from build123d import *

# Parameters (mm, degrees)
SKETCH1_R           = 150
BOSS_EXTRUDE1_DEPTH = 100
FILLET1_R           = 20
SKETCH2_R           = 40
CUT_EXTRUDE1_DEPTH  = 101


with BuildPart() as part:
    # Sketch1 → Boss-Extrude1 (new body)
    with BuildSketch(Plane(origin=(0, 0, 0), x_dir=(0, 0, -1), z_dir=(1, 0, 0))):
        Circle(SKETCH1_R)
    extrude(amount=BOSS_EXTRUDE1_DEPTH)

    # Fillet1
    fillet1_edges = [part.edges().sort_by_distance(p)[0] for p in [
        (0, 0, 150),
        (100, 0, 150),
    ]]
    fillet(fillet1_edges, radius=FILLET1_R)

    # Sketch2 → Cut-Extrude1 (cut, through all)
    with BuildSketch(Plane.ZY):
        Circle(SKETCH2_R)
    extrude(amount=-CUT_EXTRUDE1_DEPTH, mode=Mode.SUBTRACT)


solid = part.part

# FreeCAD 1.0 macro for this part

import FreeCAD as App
import Part
import Sketcher

V = App.Vector
Q = App.Units.Quantity


def edges_at(feature, points):
    """Names of the edges that pass closest to the given points."""
    edges = feature.Shape.Edges
    near = lambda p: min(range(len(edges)), key=lambda i: edges[i].distToShape(Part.Vertex(*p))[0])
    return sorted({f"Edge{near(p) + 1}" for p in points})

doc = App.newDocument("Part")
body = doc.addObject("PartDesign::Body", "Body")

sketch1 = body.newObject("Sketcher::SketchObject", "Sketch")
sketch1.AttachmentSupport = (doc.getObject("YZ_Plane"), [""])
sketch1.MapMode = "FlatFace"
sketch1.addGeometry(Part.Circle(V(0, 0, 0), V(0, 0, 1), 150), False)
sketch1.addConstraint([
    Sketcher.Constraint("Coincident", 0, 3, -1, 1),
    Sketcher.Constraint("Diameter", 0, Q("300 mm")),
])
pad1 = body.newObject("PartDesign::Pad", "Pad")
pad1.Profile = sketch1
pad1.Length = 100
doc.recompute()

fillet = body.newObject("PartDesign::Fillet", "Fillet")
fillet.Base = (pad1, edges_at(pad1, [(0, 0, 150), (100, 0, 150)]))
fillet.Radius = 20

sketch2 = body.newObject("Sketcher::SketchObject", "Sketch001")
sketch2.AttachmentSupport = (doc.getObject("YZ_Plane"), [""])
sketch2.MapMode = "FlatFace"
sketch2.addGeometry(Part.Circle(V(0, 0, 0), V(0, 0, 1), 40), False)
sketch2.addConstraint([
    Sketcher.Constraint("Coincident", 0, 3, -1, 1),
    Sketcher.Constraint("Diameter", 0, Q("80 mm")),
])
pocket1 = body.newObject("PartDesign::Pocket", "Pocket")
pocket1.Profile = sketch2
pocket1.Type = "ThroughAll"
pocket1.Reversed = True

doc.recompute()
